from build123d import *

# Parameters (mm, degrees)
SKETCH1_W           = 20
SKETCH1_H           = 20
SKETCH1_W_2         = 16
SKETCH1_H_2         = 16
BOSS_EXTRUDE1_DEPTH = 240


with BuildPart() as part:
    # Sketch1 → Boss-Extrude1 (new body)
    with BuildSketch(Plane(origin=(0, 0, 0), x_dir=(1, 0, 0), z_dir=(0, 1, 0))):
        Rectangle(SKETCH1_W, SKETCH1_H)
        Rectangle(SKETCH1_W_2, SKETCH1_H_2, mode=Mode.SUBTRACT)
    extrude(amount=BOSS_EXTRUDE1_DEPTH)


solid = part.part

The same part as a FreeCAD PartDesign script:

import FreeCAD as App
import Part
import Sketcher

V = App.Vector

doc = App.newDocument("Part")
body = doc.addObject("PartDesign::Body", "Body")

# Sketch on XZ plane
sketch1 = doc.addObject("Sketcher::SketchObject", "Sketch")
body.addObject(sketch1)
sketch1.AttachmentSupport = (doc.XZ_Plane, [""])
sketch1.MapMode = "FlatFace"
sketch1.addGeometry(Part.LineSegment(V(-10, -10, 0), V(-10, 10, 0)), False)
sketch1.addGeometry(Part.LineSegment(V(-10, 10, 0), V(10, 10, 0)), False)
sketch1.addGeometry(Part.LineSegment(V(10, 10, 0), V(10, -10, 0)), False)
sketch1.addGeometry(Part.LineSegment(V(10, -10, 0), V(-10, -10, 0)), False)
sketch1.addGeometry(Part.LineSegment(V(8, 8, 0), V(-8, 8, 0)), False)
sketch1.addGeometry(Part.LineSegment(V(-8, 8, 0), V(-8, -8, 0)), False)
sketch1.addGeometry(Part.LineSegment(V(-8, -8, 0), V(8, -8, 0)), False)
sketch1.addGeometry(Part.LineSegment(V(8, -8, 0), V(8, 8, 0)), False)
sketch1.addConstraint(Sketcher.Constraint("Coincident", 0, 2, 1, 1))
sketch1.addConstraint(Sketcher.Constraint("Coincident", 1, 2, 2, 1))
sketch1.addConstraint(Sketcher.Constraint("Coincident", 2, 2, 3, 1))
sketch1.addConstraint(Sketcher.Constraint("Coincident", 3, 2, 0, 1))
sketch1.addConstraint(Sketcher.Constraint("Coincident", 4, 2, 5, 1))
sketch1.addConstraint(Sketcher.Constraint("Coincident", 5, 2, 6, 1))
sketch1.addConstraint(Sketcher.Constraint("Coincident", 6, 2, 7, 1))
sketch1.addConstraint(Sketcher.Constraint("Coincident", 7, 2, 4, 1))
sketch1.addConstraint(Sketcher.Constraint("Vertical", 0))
sketch1.addConstraint(Sketcher.Constraint("Horizontal", 1))
sketch1.addConstraint(Sketcher.Constraint("Vertical", 2))
sketch1.addConstraint(Sketcher.Constraint("Horizontal", 3))
sketch1.addConstraint(Sketcher.Constraint("Horizontal", 4))
sketch1.addConstraint(Sketcher.Constraint("Vertical", 5))
sketch1.addConstraint(Sketcher.Constraint("Horizontal", 6))
sketch1.addConstraint(Sketcher.Constraint("Vertical", 7))
sketch1.addConstraint(Sketcher.Constraint("Symmetric", 0, 2, 2, 2, -1, 1))
sketch1.addConstraint(Sketcher.Constraint("Symmetric", 4, 2, 6, 2, -1, 1))
sketch1.addConstraint(Sketcher.Constraint("Equal", 3, 0))
sketch1.addConstraint(Sketcher.Constraint("Equal", 6, 5))
sketch1.addConstraint(Sketcher.Constraint("DistanceX", 1, 1, 1, 2, 20.0))
sketch1.addConstraint(Sketcher.Constraint("DistanceX", 4, 2, 4, 1, 16.0))
pad1 = doc.addObject("PartDesign::Pad", "Pad")
body.addObject(pad1)
pad1.Profile = sketch1
pad1.Length = 240
pad1.Reversed = True

doc.recompute()
